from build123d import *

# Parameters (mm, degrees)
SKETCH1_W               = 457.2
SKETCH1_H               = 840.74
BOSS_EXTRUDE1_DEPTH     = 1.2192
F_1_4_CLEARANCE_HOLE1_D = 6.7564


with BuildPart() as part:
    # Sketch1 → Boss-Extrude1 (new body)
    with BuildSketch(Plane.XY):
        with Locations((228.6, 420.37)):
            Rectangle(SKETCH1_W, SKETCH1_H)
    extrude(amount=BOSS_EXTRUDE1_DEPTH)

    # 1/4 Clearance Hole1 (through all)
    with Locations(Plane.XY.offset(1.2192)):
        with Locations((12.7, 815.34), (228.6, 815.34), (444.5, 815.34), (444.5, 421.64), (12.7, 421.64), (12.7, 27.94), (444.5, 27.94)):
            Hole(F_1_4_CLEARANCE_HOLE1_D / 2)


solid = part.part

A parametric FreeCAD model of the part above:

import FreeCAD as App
import Part
import Sketcher
Q = App.Units.Quantity

doc = App.newDocument("Part")
body = doc.addObject("PartDesign::Body", "Body")

# Sketch on XY plane
sketch1 = body.newObject("Sketcher::SketchObject", "Sketch")
sketch1.AttachmentSupport = (doc.getObject("XY_Plane"), [""])
sketch1.MapMode = "FlatFace"
sketch1.addGeometry(Part.LineSegment(App.Vector(0, 841, 0), App.Vector(0, 0, 0)), False)
sketch1.addGeometry(Part.LineSegment(App.Vector(0, 0, 0), App.Vector(457, 0, 0)), False)
sketch1.addGeometry(Part.LineSegment(App.Vector(457, 0, 0), App.Vector(457, 841, 0)), False)
sketch1.addGeometry(Part.LineSegment(App.Vector(457, 841, 0), App.Vector(0, 841, 0)), False)
sketch1.addConstraint(Sketcher.Constraint("Coincident", 0, 2, 1, 1))
sketch1.addConstraint(Sketcher.Constraint("Coincident", 1, 2, 2, 1))
sketch1.addConstraint(Sketcher.Constraint("Coincident", 2, 2, 3, 1))
sketch1.addConstraint(Sketcher.Constraint("Coincident", 3, 2, 0, 1))
sketch1.addConstraint(Sketcher.Constraint("Vertical", 0))
sketch1.addConstraint(Sketcher.Constraint("Horizontal", 1))
sketch1.addConstraint(Sketcher.Constraint("Vertical", 2))
sketch1.addConstraint(Sketcher.Constraint("Horizontal", 3))
sketch1.addConstraint(Sketcher.Constraint("Coincident", 0, 2, -1, 1))
sketch1.addConstraint(Sketcher.Constraint("DistanceX", 1, 1, 1, 2, Q("18 in")))
sketch1.addConstraint(Sketcher.Constraint("DistanceY", 0, 2, 0, 1, Q("33.1 in")))
pad1 = body.newObject("PartDesign::Pad", "Pad")
pad1.Profile = sketch1
pad1.Length = Q("0.048 in")

# Sketch on XY plane
sketch2 = body.newObject("Sketcher::SketchObject", "Sketch001")
sketch2.AttachmentSupport = (doc.getObject("XY_Plane"), [""])
sketch2.MapMode = "FlatFace"
sketch2.AttachmentOffset = App.Placement(App.Vector(0, 0, 0.048 * 25.4), App.Rotation())
sketch2.addGeometry(Part.Circle(App.Vector(12.7, 815.3, 0), App.Vector(0, 0, 1), 3.4), False)
sketch2.addGeometry(Part.Circle(App.Vector(228.6, 815.3, 0), App.Vector(0, 0, 1), 3.4), False)
sketch2.addGeometry(Part.Circle(App.Vector(444.5, 815.3, 0), App.Vector(0, 0, 1), 3.4), False)
sketch2.addGeometry(Part.Circle(App.Vector(444.5, 421.6, 0), App.Vector(0, 0, 1), 3.4), False)
sketch2.addGeometry(Part.Circle(App.Vector(12.7, 421.6, 0), App.Vector(0, 0, 1), 3.4), False)
sketch2.addGeometry(Part.Circle(App.Vector(12.7, 27.9, 0), App.Vector(0, 0, 1), 3.4), False)
sketch2.addGeometry(Part.Circle(App.Vector(444.5, 27.9, 0), App.Vector(0, 0, 1), 3.4), False)
sketch2.addConstraint(Sketcher.Constraint("Equal", 0, 1))
sketch2.addConstraint(Sketcher.Constraint("Equal", 1, 2))
sketch2.addConstraint(Sketcher.Constraint("Equal", 2, 3))
sketch2.addConstraint(Sketcher.Constraint("Equal", 3, 4))
sketch2.addConstraint(Sketcher.Constraint("Equal", 4, 5))
sketch2.addConstraint(Sketcher.Constraint("Equal", 5, 6))
sketch2.addConstraint(Sketcher.Constraint("Horizontal", 0, 3, 1, 3))
sketch2.addConstraint(Sketcher.Constraint("Horizontal", 1, 3, 2, 3))
sketch2.addConstraint(Sketcher.Constraint("Horizontal", 3, 3, 4, 3))
sketch2.addConstraint(Sketcher.Constraint("Horizontal", 5, 3, 6, 3))
sketch2.addConstraint(Sketcher.Constraint("Vertical", 2, 3, 3, 3))
sketch2.addConstraint(Sketcher.Constraint("Vertical", 0, 3, 4, 3))
sketch2.addConstraint(Sketcher.Constraint("Vertical", 4, 3, 5, 3))
sketch2.addConstraint(Sketcher.Constraint("Vertical", 3, 3, 6, 3))
sketch2.addConstraint(Sketcher.Constraint("Diameter", 0, Q("0.266 in")))
sketch2.addConstraint(Sketcher.Constraint("DistanceX", -1, 1, 1, 3, Q("9 in")))
sketch2.addConstraint(Sketcher.Constraint("DistanceX", 0, 3, 2, 3, Q("17 in")))
sketch2.addConstraint(Sketcher.Constraint("DistanceY", 5, 3, 0, 3, Q("31 in")))
sketch2.addConstraint(Sketcher.Constraint("DistanceX", -1, 1, 0, 3, Q("0.5 in")))
sketch2.addConstraint(Sketcher.Constraint("DistanceY", -1, 1, 0, 3, Q("32.1 in")))
sketch2.addConstraint(Sketcher.Constraint("DistanceY", -1, 1, 3, 3, Q("16.6 in")))
doc.recompute()
hole = body.newObject("PartDesign::Hole", "Hole")
hole.Profile = sketch2
hole.ThreadType = "None"
hole.Diameter = Q("0.266 in")
hole.DepthType = "ThroughAll"

doc.recompute()
